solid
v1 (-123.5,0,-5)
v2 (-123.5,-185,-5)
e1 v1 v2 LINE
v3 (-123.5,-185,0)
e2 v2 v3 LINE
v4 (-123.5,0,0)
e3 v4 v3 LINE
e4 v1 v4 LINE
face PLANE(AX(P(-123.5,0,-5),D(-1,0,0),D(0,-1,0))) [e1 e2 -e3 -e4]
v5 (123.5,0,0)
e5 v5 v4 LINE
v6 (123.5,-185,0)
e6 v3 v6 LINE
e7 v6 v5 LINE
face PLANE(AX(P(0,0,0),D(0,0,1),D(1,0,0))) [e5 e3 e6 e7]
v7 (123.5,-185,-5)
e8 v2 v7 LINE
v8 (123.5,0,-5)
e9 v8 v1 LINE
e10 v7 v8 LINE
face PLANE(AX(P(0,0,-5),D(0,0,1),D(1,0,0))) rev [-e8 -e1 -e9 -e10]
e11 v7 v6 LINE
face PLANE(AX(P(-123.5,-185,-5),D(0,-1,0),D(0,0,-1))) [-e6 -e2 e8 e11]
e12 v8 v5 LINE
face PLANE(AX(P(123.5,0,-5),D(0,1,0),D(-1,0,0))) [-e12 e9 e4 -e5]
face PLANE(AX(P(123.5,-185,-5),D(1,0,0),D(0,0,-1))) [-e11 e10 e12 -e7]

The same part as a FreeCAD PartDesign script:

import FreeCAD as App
import Part
import Sketcher
from FreeCAD import Vector
Q = App.Units.Quantity


def add_polygon(sketch, points):
    """Adds a closed chain of lines whose ends are joined by coincident constraints."""
    first, n = sketch.GeometryCount, len(points)
    for a, b in zip(points, points[1:] + points[:1]):
        sketch.addGeometry(Part.LineSegment(App.Vector(*a, 0), App.Vector(*b, 0)), False)
    for i in range(n):
        sketch.addConstraint(Sketcher.Constraint("Coincident", first + i, 2, first + (i + 1) % n, 1))

doc = App.newDocument("Part")
body = doc.addObject("PartDesign::Body", "Body")

# Sketch on XY plane
sketch1 = doc.addObject("Sketcher::SketchObject", "Sketch")
body.addObject(sketch1)
sketch1.AttachmentSupport = (doc.XY_Plane, [""])
sketch1.MapMode = "FlatFace"
add_polygon(sketch1, [(-124, 0), (-124, -185), (124, -185), (124, 0)])  # lines 0-3
sketch1.addConstraint([
    Sketcher.Constraint("Vertical", 0),
    Sketcher.Constraint("Horizontal", 1),
    Sketcher.Constraint("Vertical", 2),
    Sketcher.Constraint("Horizontal", 3),
    Sketcher.Constraint("Symmetric", 2, 2, 3, 2, -1, 1),
    Sketcher.Constraint("DistanceX", 1, 1, 1, 2, Q("247 mm")),
    Sketcher.Constraint("DistanceY", 0, 2, 0, 1, Q("185 mm")),
])
pad1 = doc.addObject("PartDesign::Pad", "Pad")
body.addObject(pad1)
pad1.Profile = sketch1
pad1.Length = 5
pad1.Reversed = True

doc.recompute()
